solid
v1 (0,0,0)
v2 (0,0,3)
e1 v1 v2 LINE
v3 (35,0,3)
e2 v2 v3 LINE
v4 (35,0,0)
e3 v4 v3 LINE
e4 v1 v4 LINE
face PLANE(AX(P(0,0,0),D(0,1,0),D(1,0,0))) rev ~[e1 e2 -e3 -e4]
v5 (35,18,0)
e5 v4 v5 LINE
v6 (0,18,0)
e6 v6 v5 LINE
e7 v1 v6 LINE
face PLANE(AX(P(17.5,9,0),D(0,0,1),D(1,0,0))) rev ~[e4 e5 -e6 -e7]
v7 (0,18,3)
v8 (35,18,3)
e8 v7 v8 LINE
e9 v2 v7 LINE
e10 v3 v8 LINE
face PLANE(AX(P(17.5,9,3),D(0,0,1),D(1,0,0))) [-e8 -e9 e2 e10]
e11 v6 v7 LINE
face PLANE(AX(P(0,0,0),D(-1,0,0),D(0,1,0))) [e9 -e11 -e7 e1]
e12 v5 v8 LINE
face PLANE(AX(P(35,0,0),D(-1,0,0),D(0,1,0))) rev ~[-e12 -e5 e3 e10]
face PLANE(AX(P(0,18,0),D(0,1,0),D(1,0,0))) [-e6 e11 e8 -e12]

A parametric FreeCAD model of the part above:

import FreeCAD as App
import Part
import Sketcher
from FreeCAD import Vector


def add_polygon(sketch, points):
    """Adds a closed chain of lines whose ends are joined by coincident constraints."""
    first, n = sketch.GeometryCount, len(points)
    for a, b in zip(points, points[1:] + points[:1]):
        sketch.addGeometry(Part.LineSegment(App.Vector(*a, 0), App.Vector(*b, 0)), False)
    for i in range(n):
        sketch.addConstraint(Sketcher.Constraint("Coincident", first + i, 2, first + (i + 1) % n, 1))

doc = App.newDocument("Part")
body = doc.addObject("PartDesign::Body", "Body")

# Sketch on XY plane
sketch1 = doc.addObject("Sketcher::SketchObject", "Sketch")
body.addObject(sketch1)
sketch1.AttachmentSupport = (doc.XY_Plane, [""])
sketch1.MapMode = "FlatFace"
add_polygon(sketch1, [(0, 18), (0, 0), (35, 0), (35, 18)])  # lines 0-3
sketch1.addConstraint(Sketcher.Constraint("Vertical", 0))
sketch1.addConstraint(Sketcher.Constraint("Horizontal", 1))
sketch1.addConstraint(Sketcher.Constraint("Vertical", 2))
sketch1.addConstraint(Sketcher.Constraint("Horizontal", 3))
sketch1.addConstraint(Sketcher.Constraint("Coincident", 0, 2, -1, 1))
sketch1.addConstraint(Sketcher.Constraint("DistanceX", 1, 1, 1, 2, 35.0))
sketch1.addConstraint(Sketcher.Constraint("DistanceY", 0, 2, 0, 1, 18.0))
pad1 = doc.addObject("PartDesign::Pad", "Pad")
body.addObject(pad1)
pad1.Profile = sketch1
pad1.Length = 3

doc.recompute()
